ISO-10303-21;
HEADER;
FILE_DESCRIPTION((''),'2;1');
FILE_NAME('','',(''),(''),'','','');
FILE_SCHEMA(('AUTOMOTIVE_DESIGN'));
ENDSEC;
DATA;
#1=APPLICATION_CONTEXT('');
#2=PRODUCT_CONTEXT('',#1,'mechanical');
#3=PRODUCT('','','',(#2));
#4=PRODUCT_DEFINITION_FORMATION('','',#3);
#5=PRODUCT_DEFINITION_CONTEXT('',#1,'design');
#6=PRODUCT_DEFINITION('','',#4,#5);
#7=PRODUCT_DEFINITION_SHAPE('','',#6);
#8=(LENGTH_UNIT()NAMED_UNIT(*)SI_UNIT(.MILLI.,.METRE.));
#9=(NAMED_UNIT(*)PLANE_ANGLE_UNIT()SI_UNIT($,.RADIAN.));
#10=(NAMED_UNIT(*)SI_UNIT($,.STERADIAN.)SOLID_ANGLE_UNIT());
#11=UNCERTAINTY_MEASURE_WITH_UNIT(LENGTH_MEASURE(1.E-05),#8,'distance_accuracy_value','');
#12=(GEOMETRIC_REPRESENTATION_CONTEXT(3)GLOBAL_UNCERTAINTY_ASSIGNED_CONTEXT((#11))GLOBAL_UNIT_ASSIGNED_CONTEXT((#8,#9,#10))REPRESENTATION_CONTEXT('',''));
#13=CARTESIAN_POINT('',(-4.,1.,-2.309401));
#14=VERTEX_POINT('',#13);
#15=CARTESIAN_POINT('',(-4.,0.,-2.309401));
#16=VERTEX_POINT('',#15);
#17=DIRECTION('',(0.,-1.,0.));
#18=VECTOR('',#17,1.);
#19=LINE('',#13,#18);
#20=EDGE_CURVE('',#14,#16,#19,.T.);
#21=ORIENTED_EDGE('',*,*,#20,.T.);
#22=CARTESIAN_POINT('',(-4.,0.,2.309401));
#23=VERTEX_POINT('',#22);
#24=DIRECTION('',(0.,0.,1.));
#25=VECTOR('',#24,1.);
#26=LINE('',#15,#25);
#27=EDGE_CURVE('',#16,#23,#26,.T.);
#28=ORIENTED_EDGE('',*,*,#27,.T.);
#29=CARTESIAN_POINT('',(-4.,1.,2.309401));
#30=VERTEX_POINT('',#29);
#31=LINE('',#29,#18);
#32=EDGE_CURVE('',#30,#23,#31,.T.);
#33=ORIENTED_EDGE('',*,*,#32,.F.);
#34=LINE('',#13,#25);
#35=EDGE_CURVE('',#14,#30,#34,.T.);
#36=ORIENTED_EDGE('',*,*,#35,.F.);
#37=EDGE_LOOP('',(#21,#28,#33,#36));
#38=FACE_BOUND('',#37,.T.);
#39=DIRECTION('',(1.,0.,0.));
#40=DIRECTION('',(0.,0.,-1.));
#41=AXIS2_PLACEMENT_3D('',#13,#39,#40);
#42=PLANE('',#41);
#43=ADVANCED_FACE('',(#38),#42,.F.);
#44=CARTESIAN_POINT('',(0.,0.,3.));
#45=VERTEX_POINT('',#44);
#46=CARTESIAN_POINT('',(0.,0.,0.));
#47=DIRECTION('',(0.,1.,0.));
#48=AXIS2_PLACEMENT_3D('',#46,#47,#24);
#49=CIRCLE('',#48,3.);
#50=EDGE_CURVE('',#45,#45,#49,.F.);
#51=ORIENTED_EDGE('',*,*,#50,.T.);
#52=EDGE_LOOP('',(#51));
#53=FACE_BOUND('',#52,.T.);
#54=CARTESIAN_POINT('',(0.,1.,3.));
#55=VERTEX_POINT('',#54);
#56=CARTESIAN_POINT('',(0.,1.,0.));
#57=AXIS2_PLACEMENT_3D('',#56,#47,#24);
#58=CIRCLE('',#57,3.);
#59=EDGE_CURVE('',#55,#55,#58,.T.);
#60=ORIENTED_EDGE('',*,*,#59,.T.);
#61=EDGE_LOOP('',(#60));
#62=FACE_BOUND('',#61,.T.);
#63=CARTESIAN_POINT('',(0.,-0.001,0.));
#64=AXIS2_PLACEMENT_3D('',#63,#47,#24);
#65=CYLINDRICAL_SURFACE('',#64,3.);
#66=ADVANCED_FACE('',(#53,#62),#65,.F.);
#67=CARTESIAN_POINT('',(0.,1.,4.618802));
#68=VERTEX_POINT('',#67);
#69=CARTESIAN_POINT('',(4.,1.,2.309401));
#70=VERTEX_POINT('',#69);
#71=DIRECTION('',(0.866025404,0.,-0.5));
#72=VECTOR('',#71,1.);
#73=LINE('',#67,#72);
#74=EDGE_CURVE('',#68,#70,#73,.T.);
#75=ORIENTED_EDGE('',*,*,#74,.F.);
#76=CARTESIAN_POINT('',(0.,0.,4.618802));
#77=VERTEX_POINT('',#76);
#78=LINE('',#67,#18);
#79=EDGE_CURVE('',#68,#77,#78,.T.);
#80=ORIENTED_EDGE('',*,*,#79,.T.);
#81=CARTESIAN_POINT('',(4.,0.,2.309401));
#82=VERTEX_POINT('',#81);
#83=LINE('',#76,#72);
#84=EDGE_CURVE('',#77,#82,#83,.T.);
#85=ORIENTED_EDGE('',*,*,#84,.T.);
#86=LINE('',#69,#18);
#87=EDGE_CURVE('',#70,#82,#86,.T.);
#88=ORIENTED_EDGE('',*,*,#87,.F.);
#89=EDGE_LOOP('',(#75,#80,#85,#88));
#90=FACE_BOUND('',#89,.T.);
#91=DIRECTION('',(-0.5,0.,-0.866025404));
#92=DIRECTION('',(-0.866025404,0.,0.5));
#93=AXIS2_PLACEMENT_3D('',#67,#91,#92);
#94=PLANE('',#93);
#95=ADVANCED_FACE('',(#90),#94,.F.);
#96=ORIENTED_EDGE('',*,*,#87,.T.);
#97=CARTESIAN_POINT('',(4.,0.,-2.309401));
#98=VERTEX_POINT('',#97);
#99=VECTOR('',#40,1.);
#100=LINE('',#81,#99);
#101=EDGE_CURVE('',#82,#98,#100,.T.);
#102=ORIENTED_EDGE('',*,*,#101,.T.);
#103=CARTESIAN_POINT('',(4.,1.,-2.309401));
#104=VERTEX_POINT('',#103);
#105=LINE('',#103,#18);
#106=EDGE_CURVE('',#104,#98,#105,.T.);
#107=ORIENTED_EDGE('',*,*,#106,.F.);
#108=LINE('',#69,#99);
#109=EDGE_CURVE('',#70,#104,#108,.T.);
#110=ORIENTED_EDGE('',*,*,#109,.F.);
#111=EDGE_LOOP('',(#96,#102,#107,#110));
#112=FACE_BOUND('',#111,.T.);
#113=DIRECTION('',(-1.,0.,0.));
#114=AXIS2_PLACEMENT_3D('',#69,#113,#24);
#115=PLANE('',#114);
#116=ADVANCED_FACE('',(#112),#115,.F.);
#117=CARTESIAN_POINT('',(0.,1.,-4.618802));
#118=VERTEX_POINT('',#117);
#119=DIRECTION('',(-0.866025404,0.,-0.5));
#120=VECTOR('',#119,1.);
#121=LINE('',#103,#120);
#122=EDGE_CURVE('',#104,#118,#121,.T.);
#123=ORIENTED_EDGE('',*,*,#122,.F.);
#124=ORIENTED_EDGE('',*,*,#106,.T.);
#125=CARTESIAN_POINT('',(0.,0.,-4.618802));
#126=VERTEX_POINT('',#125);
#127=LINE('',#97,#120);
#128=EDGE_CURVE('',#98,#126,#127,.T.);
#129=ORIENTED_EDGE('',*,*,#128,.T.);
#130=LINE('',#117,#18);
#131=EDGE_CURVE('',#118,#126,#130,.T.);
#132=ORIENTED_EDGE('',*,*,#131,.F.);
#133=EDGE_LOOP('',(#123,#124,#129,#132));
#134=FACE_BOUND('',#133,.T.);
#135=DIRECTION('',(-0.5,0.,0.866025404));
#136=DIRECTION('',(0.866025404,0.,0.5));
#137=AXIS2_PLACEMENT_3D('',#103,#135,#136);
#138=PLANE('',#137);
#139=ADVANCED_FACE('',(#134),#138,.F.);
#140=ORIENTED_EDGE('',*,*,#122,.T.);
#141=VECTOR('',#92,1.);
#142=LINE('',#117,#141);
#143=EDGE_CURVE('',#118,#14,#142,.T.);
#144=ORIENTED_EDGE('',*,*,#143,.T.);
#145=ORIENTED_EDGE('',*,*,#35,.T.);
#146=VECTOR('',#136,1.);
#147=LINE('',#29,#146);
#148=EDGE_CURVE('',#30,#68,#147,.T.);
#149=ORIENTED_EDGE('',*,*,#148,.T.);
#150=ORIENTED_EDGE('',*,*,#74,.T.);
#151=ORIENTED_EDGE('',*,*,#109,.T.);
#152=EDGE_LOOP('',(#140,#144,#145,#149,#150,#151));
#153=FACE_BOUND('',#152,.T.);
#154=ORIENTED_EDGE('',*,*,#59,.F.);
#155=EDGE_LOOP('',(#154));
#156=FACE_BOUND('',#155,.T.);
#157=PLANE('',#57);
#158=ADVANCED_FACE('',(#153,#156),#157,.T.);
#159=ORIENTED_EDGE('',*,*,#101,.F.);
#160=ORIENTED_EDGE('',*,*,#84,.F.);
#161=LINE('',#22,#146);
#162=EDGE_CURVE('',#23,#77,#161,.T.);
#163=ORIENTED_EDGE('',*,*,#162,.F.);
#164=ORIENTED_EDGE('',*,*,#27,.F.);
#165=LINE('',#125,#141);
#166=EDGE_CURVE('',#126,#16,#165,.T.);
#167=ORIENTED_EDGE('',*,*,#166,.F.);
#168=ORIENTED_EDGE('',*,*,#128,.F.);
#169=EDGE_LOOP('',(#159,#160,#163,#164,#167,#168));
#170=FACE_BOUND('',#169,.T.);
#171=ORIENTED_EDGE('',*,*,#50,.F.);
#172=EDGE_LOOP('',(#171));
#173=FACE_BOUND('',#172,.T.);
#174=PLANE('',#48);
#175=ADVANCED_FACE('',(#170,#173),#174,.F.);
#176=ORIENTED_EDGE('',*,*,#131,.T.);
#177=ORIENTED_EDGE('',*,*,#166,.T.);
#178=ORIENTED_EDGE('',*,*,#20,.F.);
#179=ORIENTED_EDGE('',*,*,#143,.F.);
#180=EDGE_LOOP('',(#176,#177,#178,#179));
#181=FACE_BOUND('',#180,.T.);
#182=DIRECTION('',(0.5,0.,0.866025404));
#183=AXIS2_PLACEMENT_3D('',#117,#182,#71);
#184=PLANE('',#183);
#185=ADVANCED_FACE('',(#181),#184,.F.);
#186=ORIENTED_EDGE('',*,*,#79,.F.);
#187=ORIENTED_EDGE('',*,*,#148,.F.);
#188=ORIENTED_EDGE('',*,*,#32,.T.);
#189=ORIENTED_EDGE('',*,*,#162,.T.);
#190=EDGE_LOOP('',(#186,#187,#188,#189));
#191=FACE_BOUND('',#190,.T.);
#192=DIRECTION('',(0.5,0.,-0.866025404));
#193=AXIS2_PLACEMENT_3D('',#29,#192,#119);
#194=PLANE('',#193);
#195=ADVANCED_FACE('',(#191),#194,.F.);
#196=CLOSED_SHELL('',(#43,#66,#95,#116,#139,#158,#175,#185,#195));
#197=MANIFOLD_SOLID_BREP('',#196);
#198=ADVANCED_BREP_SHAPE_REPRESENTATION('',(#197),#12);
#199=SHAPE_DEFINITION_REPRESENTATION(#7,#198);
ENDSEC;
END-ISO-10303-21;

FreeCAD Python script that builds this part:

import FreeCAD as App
import Part
import Sketcher
from FreeCAD import Vector
Q = App.Units.Quantity


def add_polygon(sketch, points):
    """Adds a closed chain of lines whose ends are joined by coincident constraints."""
    first, n = sketch.GeometryCount, len(points)
    for a, b in zip(points, points[1:] + points[:1]):
        sketch.addGeometry(Part.LineSegment(App.Vector(*a, 0), App.Vector(*b, 0)), False)
    for i in range(n):
        sketch.addConstraint(Sketcher.Constraint("Coincident", first + i, 2, first + (i + 1) % n, 1))

doc = App.newDocument("Part")
body = doc.addObject("PartDesign::Body", "Body")

sketch1 = body.newObject("Sketcher::SketchObject", "Sketch")
sketch1.AttachmentSupport = (doc.getObject("XZ_Plane"), [""])
sketch1.MapMode = "FlatFace"
add_polygon(sketch1, [(0, -4.6), (-4, -2.3), (-4, 2.3), (0, 4.6), (4, 2.3), (4, -2.3)])
sketch1.addConstraint([
    Sketcher.Constraint("Vertical", 1),
    Sketcher.Constraint("Vertical", 4),
    Sketcher.Constraint("Symmetric", 0, 2, 3, 2, -1, 1),
    Sketcher.Constraint("Symmetric", 2, 2, 5, 2, -1, 1),
    Sketcher.Constraint("PointOnObject", 2, 2, -2),
    Sketcher.Constraint("Parallel", 2, 5),
    Sketcher.Constraint("Horizontal", 1, 2, 3, 2),
    Sketcher.Constraint("Angle", 0, Q("150 deg")),
    Sketcher.Constraint("DistanceX", 0, 2, -1, 1, Q("4 mm")),
    Sketcher.Constraint("DistanceY", 0, 2, -1, 1, Q("2.309401 mm")),
])
pad1 = body.newObject("PartDesign::Pad", "Pad")
pad1.Profile = sketch1
pad1.Length = 1
pad1.Reversed = True

sketch2 = body.newObject("Sketcher::SketchObject", "Sketch001")
sketch2.AttachmentSupport = (doc.getObject("XZ_Plane"), [""])
sketch2.MapMode = "FlatFace"
sketch2.AttachmentOffset = App.Placement(Vector(0, 0, -1), App.Rotation())
sketch2.addGeometry(Part.Circle(Vector(0, 0, 0), Vector(0, 0, 1), 3), False)
sketch2.addConstraint([
    Sketcher.Constraint("Coincident", 0, 3, -1, 1),
    Sketcher.Constraint("Diameter", 0, Q("6 mm")),
])
pocket1 = body.newObject("PartDesign::Pocket", "Pocket")
pocket1.Profile = sketch2
pocket1.Type = "UpToFirst"
pocket1.Reversed = True

doc.recompute()
